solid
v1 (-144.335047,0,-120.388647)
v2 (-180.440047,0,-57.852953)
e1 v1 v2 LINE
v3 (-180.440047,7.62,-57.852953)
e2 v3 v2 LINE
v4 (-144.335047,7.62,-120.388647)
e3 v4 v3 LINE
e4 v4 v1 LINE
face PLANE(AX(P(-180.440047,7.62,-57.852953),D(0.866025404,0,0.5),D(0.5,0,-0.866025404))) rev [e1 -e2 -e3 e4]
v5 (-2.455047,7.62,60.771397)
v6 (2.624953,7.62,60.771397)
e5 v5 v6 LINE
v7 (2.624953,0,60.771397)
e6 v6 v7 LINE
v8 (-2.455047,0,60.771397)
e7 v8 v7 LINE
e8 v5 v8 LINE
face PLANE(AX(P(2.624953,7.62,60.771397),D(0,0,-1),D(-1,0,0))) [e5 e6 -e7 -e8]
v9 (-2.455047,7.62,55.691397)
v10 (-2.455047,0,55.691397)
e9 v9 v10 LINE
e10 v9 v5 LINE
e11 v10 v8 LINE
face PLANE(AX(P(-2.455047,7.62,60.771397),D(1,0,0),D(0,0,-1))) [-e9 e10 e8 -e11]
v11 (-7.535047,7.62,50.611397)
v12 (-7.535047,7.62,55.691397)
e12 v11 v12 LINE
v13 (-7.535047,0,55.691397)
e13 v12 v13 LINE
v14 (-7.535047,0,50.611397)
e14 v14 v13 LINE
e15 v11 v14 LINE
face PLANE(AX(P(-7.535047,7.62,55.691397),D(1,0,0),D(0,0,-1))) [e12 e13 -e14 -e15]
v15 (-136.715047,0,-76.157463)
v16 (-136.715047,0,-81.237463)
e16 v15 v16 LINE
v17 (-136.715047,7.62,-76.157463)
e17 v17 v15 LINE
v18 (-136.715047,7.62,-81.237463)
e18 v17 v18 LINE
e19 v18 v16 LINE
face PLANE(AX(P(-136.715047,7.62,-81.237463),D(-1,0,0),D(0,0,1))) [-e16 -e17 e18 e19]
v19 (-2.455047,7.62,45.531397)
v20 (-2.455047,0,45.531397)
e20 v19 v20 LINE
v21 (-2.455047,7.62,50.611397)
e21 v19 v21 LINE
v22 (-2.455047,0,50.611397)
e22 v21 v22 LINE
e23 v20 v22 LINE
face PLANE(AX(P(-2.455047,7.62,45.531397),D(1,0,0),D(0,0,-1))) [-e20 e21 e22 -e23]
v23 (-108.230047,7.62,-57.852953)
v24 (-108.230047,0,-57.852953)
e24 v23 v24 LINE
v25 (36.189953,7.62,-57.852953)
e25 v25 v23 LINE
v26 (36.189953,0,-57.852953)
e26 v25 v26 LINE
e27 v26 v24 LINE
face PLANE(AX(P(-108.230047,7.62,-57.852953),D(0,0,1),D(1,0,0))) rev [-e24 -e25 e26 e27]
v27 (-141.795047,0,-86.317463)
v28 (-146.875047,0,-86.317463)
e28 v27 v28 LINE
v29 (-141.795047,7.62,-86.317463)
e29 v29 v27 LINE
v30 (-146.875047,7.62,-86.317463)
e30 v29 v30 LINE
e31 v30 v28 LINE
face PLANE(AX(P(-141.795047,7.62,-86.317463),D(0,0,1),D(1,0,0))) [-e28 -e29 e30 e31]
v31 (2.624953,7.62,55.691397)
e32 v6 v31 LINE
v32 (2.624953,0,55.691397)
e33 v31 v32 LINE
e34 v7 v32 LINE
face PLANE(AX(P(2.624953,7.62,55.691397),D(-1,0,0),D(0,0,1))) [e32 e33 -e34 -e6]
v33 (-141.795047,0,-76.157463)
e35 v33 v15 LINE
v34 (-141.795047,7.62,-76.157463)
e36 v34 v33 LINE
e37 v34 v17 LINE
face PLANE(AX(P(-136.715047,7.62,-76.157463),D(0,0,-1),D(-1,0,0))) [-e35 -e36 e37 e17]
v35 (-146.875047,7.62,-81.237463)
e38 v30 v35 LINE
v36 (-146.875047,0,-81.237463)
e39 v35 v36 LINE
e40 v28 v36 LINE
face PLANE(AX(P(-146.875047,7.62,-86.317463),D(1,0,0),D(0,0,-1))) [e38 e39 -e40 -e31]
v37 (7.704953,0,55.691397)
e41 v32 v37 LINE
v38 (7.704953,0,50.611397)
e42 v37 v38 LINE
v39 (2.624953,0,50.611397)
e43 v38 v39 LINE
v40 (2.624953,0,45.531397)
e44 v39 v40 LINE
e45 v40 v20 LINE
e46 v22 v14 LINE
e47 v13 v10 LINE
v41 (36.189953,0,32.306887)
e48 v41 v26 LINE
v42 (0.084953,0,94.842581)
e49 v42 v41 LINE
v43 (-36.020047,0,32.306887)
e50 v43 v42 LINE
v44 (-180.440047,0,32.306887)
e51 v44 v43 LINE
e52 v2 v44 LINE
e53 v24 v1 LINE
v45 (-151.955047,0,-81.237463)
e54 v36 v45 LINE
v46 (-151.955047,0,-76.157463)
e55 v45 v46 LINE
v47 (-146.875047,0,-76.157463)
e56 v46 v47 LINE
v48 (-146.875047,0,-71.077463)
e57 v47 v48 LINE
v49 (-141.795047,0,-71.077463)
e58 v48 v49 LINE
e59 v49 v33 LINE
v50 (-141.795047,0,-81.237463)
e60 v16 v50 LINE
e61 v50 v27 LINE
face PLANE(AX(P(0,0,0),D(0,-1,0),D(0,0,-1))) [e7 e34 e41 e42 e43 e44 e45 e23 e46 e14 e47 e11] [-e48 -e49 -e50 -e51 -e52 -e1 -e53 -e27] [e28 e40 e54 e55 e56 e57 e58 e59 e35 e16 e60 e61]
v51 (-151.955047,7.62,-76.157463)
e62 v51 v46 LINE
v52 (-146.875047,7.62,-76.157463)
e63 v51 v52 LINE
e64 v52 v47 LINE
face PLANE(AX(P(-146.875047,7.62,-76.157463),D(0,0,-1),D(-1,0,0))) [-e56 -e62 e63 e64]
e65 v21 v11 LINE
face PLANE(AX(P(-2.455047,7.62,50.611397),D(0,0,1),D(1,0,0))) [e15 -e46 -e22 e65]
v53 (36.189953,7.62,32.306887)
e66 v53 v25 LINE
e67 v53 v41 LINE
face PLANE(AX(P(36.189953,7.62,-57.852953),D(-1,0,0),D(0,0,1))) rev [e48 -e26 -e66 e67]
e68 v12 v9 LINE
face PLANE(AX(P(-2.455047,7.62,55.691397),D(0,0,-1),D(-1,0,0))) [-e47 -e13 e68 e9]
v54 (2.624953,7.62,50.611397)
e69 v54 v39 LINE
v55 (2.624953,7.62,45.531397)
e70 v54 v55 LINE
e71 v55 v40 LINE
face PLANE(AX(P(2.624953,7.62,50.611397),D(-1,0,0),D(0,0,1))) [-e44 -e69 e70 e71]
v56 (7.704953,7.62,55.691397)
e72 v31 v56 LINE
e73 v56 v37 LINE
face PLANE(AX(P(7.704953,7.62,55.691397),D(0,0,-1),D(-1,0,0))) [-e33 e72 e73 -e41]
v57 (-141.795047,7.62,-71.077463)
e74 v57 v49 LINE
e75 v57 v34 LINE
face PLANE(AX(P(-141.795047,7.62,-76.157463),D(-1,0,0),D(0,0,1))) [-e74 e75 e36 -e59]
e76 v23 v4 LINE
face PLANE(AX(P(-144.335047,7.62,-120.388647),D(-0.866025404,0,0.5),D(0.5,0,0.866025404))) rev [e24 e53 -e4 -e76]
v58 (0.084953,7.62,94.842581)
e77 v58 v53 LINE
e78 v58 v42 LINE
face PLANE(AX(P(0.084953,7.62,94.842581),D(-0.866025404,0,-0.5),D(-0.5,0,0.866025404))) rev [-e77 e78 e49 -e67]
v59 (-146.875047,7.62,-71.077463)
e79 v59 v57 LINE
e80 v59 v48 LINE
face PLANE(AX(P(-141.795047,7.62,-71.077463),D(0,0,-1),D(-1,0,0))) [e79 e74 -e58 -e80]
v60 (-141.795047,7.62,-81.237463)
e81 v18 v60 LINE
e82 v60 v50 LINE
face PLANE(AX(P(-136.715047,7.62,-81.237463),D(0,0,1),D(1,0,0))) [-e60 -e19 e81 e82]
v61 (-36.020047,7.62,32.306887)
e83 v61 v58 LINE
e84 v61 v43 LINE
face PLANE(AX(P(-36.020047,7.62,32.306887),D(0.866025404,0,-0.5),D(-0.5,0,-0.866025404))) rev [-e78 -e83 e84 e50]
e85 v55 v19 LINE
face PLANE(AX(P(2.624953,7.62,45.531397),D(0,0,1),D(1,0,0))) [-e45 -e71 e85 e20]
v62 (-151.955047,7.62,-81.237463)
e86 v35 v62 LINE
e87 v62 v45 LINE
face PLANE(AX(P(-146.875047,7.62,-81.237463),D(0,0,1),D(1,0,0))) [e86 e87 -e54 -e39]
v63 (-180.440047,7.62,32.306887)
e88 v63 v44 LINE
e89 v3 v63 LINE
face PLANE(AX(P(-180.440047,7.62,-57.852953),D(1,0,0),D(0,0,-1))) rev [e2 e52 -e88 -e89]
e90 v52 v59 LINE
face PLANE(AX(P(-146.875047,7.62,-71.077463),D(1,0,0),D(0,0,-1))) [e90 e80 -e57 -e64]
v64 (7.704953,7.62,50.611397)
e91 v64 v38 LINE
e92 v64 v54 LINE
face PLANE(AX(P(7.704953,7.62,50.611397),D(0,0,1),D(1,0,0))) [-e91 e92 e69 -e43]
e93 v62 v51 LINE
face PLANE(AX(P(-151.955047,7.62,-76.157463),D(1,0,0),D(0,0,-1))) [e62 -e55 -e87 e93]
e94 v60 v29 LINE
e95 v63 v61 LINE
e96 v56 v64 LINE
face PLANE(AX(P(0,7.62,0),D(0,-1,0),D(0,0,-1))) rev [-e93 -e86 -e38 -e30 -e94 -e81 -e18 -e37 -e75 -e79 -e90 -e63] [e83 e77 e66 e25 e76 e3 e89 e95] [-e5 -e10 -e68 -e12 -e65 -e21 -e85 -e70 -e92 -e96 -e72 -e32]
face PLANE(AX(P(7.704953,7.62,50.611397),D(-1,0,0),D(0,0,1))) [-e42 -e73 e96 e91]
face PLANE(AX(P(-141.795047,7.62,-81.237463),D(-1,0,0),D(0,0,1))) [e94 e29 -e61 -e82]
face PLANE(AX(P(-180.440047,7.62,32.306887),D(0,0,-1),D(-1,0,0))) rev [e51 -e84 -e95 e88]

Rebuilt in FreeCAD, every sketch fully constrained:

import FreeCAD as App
import Part
import Sketcher
Q = App.Units.Quantity


def add_polygon(sketch, points):
    """Adds a closed chain of lines whose ends are joined by coincident constraints."""
    first, n = sketch.GeometryCount, len(points)
    for a, b in zip(points, points[1:] + points[:1]):
        sketch.addGeometry(Part.LineSegment(App.Vector(*a, 0), App.Vector(*b, 0)), False)
    for i in range(n):
        sketch.addConstraint(Sketcher.Constraint("Coincident", first + i, 2, first + (i + 1) % n, 1))

doc = App.newDocument("Part")
body = doc.addObject("PartDesign::Body", "Body")

sketch1 = body.newObject("Sketcher::SketchObject", "Sketch")
sketch1.AttachmentSupport = (doc.getObject("XZ_Plane"), [""])
sketch1.MapMode = "FlatFace"
add_polygon(sketch1, [(36.189953, -57.852953), (-108.230047, -57.852953), (-144.335047, -120.388647), (-180.440047, -57.852953), (-180.440047, 32.306887), (-36.020047, 32.306887), (0.084953, 94.842581), (36.189953, 32.306887)])
add_polygon(sketch1, [(7.704953, 50.611397), (7.704953, 55.691397), (2.624953, 55.691397), (2.624953, 60.771397), (-2.455047, 60.771397), (-2.455047, 55.691397), (-7.535047, 55.691397), (-7.535047, 50.611397), (-2.455047, 50.611397), (-2.455047, 45.531397), (2.624953, 45.531397), (2.624953, 50.611397)])
add_polygon(sketch1, [(-146.875047, -81.237463), (-146.875047, -86.317463), (-141.795047, -86.317463), (-141.795047, -81.237463), (-136.715047, -81.237463), (-136.715047, -76.157463), (-141.795047, -76.157463), (-141.795047, -71.077463), (-146.875047, -71.077463), (-146.875047, -76.157463), (-151.955047, -76.157463), (-151.955047, -81.237463)])
sketch1.addConstraint(Sketcher.Constraint("Horizontal", 0))
sketch1.addConstraint(Sketcher.Constraint("Vertical", 3))
sketch1.addConstraint(Sketcher.Constraint("Horizontal", 4))
sketch1.addConstraint(Sketcher.Constraint("Vertical", 7))
sketch1.addConstraint(Sketcher.Constraint("Vertical", 8))
sketch1.addConstraint(Sketcher.Constraint("Horizontal", 9))
sketch1.addConstraint(Sketcher.Constraint("Vertical", 10))
sketch1.addConstraint(Sketcher.Constraint("Horizontal", 11))
sketch1.addConstraint(Sketcher.Constraint("Vertical", 12))
sketch1.addConstraint(Sketcher.Constraint("Horizontal", 13))
sketch1.addConstraint(Sketcher.Constraint("Vertical", 14))
sketch1.addConstraint(Sketcher.Constraint("Horizontal", 15))
sketch1.addConstraint(Sketcher.Constraint("Vertical", 16))
sketch1.addConstraint(Sketcher.Constraint("Horizontal", 17))
sketch1.addConstraint(Sketcher.Constraint("Vertical", 18))
sketch1.addConstraint(Sketcher.Constraint("Horizontal", 19))
sketch1.addConstraint(Sketcher.Constraint("Vertical", 20))
sketch1.addConstraint(Sketcher.Constraint("Horizontal", 21))
sketch1.addConstraint(Sketcher.Constraint("Vertical", 22))
sketch1.addConstraint(Sketcher.Constraint("Horizontal", 23))
sketch1.addConstraint(Sketcher.Constraint("Vertical", 24))
sketch1.addConstraint(Sketcher.Constraint("Horizontal", 25))
sketch1.addConstraint(Sketcher.Constraint("Vertical", 26))
sketch1.addConstraint(Sketcher.Constraint("Horizontal", 27))
sketch1.addConstraint(Sketcher.Constraint("Vertical", 28))
sketch1.addConstraint(Sketcher.Constraint("Horizontal", 29))
sketch1.addConstraint(Sketcher.Constraint("Vertical", 30))
sketch1.addConstraint(Sketcher.Constraint("Horizontal", 31))
sketch1.addConstraint(Sketcher.Constraint("Parallel", 1, 5))
sketch1.addConstraint(Sketcher.Constraint("Parallel", 2, 6))
sketch1.addConstraint(Sketcher.Constraint("Horizontal", 0, 2, 2, 2))
sketch1.addConstraint(Sketcher.Constraint("Horizontal", 4, 2, 6, 2))
sketch1.addConstraint(Sketcher.Constraint("Horizontal", 9, 2, 12, 2))
sketch1.addConstraint(Sketcher.Constraint("Horizontal", 15, 2, 18, 2))
sketch1.addConstraint(Sketcher.Constraint("Horizontal", 25, 2, 28, 2))
sketch1.addConstraint(Sketcher.Constraint("Horizontal", 23, 2, 30, 2))
sketch1.addConstraint(Sketcher.Constraint("Vertical", 12, 2, 15, 2))
sketch1.addConstraint(Sketcher.Constraint("Vertical", 10, 2, 17, 2))
sketch1.addConstraint(Sketcher.Constraint("Vertical", 22, 2, 25, 2))
sketch1.addConstraint(Sketcher.Constraint("Vertical", 20, 2, 27, 2))
sketch1.addConstraint(Sketcher.Constraint("Equal", 0, 4))
sketch1.addConstraint(Sketcher.Constraint("Equal", 9, 11))
sketch1.addConstraint(Sketcher.Constraint("Equal", 11, 13))
sketch1.addConstraint(Sketcher.Constraint("Equal", 19, 21))
sketch1.addConstraint(Sketcher.Constraint("Equal", 21, 23))
sketch1.addConstraint(Sketcher.Constraint("Equal", 27, 29))
sketch1.addConstraint(Sketcher.Constraint("Equal", 31, 8))
sketch1.addConstraint(Sketcher.Constraint("Equal", 8, 10))
sketch1.addConstraint(Sketcher.Constraint("Equal", 14, 16))
sketch1.addConstraint(Sketcher.Constraint("Equal", 18, 20))
sketch1.addConstraint(Sketcher.Constraint("Equal", 22, 24))
sketch1.addConstraint(Sketcher.Constraint("Equal", 24, 26))
sketch1.addConstraint(Sketcher.Constraint("Equal", 1, 2))
sketch1.addConstraint(Sketcher.Constraint("DistanceX", 9, 2, 9, 1, Q("0.2 in")))
sketch1.addConstraint(Sketcher.Constraint("Angle", 1, Q("-120 deg")))
sketch1.addConstraint(Sketcher.Constraint("DistanceX", 5, 2, 8, 2, Q("0.3 in")))
sketch1.addConstraint(Sketcher.Constraint("DistanceX", 20, 2, 1, 2, Q("0.1 in")))
sketch1.addConstraint(Sketcher.Constraint("DistanceY", 3, 1, 3, 2, Q("3.5496 in")))
sketch1.addConstraint(Sketcher.Constraint("DistanceX", 0, 2, 0, 1, 144.42))
sketch1.addConstraint(Sketcher.Constraint("Distance", 1, 72.21))
sketch1.addConstraint(Sketcher.Constraint("DistanceY", -1, 1, 5, 2, 94.842581))
sketch1.addConstraint(Sketcher.Constraint("DistanceY", 6, 2, 8, 2, 23.38451))
sketch1.addConstraint(Sketcher.Constraint("DistanceY", 20, 2, 2, 2, 28.46451))
sketch1.addConstraint(Sketcher.Constraint("DistanceX", 0, 2, -1, 1, 108.230047))
pad1 = body.newObject("PartDesign::Pad", "Pad")
pad1.Profile = sketch1
pad1.Length = Q("0.3 in")
pad1.Reversed = True

doc.recompute()
